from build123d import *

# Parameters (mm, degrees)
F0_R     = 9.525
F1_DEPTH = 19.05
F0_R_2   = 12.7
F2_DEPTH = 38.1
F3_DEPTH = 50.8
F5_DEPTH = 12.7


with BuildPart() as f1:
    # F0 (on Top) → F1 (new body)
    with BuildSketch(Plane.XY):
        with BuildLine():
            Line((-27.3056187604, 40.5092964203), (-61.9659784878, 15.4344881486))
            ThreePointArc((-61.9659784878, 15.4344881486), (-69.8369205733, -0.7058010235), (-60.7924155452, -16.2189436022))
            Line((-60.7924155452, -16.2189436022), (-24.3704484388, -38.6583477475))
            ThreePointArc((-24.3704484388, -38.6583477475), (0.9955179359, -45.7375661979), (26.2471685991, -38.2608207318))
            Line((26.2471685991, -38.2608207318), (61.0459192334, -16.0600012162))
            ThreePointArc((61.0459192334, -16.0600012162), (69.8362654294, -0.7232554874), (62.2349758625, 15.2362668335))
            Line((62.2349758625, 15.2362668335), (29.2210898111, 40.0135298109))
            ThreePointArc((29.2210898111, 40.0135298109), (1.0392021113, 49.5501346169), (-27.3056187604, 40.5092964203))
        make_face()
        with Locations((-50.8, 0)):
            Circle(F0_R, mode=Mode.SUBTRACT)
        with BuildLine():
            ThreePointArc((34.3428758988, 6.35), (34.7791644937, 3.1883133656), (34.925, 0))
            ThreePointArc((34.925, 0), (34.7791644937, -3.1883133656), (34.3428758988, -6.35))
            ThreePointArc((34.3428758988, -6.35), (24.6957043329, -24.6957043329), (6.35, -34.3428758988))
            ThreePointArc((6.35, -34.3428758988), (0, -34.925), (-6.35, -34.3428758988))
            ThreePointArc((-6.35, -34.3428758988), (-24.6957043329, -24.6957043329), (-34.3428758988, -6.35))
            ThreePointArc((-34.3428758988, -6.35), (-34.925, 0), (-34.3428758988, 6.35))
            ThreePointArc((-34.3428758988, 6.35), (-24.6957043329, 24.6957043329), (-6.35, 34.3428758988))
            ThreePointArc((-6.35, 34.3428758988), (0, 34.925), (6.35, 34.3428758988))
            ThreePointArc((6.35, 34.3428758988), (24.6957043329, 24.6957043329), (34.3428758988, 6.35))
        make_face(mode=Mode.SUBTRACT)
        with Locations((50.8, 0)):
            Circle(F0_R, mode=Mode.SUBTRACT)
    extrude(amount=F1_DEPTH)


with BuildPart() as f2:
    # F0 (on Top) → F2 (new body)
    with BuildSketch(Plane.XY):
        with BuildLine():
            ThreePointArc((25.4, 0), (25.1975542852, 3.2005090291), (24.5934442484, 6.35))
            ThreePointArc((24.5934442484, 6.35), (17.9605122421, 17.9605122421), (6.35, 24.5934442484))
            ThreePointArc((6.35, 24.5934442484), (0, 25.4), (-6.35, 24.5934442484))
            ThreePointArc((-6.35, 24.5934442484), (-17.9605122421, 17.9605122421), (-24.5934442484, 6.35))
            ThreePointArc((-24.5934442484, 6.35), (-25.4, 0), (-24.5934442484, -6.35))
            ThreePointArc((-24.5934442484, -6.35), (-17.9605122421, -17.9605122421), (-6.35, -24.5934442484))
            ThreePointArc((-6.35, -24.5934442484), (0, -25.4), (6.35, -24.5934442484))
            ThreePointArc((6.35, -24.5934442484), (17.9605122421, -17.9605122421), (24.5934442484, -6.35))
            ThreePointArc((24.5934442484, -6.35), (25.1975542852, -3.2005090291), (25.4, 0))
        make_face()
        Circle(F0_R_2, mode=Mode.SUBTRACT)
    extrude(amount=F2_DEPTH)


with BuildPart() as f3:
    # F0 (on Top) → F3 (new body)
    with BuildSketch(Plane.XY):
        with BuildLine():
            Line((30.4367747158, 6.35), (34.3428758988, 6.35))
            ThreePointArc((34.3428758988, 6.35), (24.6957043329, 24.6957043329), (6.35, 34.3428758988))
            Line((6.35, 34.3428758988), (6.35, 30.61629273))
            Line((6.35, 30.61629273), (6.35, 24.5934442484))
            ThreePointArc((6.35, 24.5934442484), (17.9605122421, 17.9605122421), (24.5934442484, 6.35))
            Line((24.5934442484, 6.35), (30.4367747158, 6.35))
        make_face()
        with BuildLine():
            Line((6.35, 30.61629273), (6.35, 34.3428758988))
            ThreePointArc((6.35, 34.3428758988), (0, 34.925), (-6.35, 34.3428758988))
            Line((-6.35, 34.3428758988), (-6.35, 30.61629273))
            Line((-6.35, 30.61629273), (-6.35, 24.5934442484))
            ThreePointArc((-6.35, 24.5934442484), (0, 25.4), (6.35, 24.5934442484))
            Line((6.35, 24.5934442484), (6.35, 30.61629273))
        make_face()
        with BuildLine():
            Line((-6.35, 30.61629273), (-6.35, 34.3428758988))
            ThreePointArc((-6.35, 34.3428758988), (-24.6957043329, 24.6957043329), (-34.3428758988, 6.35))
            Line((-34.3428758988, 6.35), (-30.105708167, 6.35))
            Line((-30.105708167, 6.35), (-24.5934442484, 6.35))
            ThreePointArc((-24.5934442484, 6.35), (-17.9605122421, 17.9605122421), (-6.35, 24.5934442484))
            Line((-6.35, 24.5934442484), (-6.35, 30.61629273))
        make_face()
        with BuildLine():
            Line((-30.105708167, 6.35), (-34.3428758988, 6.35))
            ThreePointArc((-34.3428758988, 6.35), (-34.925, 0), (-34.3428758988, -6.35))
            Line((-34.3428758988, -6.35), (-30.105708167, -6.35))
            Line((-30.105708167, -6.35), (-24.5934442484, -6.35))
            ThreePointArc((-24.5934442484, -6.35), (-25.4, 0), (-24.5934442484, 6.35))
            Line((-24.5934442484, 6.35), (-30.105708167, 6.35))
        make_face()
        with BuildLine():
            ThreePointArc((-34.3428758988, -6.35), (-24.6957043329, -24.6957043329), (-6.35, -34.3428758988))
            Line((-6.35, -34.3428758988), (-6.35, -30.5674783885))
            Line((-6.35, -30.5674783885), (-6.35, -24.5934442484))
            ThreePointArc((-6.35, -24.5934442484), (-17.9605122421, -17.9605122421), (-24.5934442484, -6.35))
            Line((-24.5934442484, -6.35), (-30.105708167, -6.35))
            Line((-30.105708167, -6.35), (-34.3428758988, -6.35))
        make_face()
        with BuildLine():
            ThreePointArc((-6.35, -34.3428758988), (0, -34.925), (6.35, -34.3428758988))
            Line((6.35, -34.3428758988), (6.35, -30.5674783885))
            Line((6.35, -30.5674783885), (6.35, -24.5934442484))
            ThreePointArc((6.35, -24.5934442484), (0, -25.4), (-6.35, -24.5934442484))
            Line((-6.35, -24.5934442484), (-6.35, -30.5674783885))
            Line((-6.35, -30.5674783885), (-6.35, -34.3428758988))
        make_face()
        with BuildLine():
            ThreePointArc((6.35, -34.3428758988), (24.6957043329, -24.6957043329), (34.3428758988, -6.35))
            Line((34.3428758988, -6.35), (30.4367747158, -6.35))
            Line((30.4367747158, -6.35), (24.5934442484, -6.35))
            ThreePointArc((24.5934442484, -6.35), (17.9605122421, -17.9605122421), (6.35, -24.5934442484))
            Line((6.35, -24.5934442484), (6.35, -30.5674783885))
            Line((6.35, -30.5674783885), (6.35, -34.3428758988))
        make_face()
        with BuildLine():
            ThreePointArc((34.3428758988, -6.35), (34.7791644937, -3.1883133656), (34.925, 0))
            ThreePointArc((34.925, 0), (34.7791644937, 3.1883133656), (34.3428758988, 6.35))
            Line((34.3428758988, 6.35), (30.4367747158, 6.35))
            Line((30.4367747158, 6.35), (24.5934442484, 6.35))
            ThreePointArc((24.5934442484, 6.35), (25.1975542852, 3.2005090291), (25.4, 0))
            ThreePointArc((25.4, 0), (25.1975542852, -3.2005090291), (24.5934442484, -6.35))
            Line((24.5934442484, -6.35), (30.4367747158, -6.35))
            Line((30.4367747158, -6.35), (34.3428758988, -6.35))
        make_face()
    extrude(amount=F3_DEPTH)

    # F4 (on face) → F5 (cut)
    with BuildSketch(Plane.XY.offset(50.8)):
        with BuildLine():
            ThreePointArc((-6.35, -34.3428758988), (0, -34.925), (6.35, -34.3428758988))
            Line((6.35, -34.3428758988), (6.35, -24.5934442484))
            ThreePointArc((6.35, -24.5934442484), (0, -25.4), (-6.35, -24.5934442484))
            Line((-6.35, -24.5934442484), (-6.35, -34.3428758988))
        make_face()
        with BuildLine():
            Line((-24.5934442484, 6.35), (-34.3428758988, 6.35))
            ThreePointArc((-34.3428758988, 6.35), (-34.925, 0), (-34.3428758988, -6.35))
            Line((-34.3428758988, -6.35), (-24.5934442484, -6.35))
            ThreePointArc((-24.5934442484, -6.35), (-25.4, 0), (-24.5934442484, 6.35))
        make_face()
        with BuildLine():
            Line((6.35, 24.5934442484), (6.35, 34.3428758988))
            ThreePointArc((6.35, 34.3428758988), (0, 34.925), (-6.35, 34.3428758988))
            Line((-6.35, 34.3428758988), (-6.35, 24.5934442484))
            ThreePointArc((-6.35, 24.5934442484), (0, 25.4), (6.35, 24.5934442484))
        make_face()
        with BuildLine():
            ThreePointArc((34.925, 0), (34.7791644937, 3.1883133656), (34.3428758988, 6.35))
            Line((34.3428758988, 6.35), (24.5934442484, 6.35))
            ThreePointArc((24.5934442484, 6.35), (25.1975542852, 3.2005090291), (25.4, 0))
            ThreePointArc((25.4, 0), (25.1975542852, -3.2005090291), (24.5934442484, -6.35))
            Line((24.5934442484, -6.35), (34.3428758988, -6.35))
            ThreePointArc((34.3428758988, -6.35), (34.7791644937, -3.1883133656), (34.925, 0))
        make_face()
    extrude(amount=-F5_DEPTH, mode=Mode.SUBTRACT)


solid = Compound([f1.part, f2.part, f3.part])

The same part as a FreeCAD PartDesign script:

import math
import FreeCAD as App
import Part
import Sketcher

V = App.Vector
Q = App.Units.Quantity

doc = App.newDocument("Part")
params = doc.addObject("Spreadsheet::Sheet", "Params")
for row, (alias, value) in enumerate([
    ("sketch1_diameter", "0.75 in"),
    ("sketch1_radius", "0.75 in"),
    ("sketch1_radius2", "1.375 in"),
    ("pad1_length", "0.75 in"),
    ("sketch2_diameter", "1 in"),
    ("sketch2_radius", "1 in"),
    ("pad2_length", "1.5 in"),
    ("sketch3_radius", "1 in"),
    ("sketch3_radius2", "1.375 in"),
    ("pad3_length", "2 in"),
    ("sketch4_radius", "1 in"),
    ("sketch4_radius2", "1.375 in"),
    ("pocket1_length", "0.5 in"),
], start=1):
    params.set(f"A{row}", alias)
    params.set(f"B{row}", "=" + value)
    params.setAlias(f"B{row}", alias)

body = doc.addObject("PartDesign::Body", "Body")

# Sketch on XY plane
sketch1 = body.newObject("Sketcher::SketchObject", "Sketch")
sketch1.AttachmentSupport = (doc.getObject("XY_Plane"), [""])
sketch1.MapMode = "FlatFace"
sketch1.addGeometry([
    Part.LineSegment(V(-27.305619, 40.509296, 0), V(-61.965978, 15.434488, 0)),  # 0
    Part.ArcOfCircle(Part.Circle(V(-50.8, 0, 0), V(0, 0, 1), 19.05), math.radians(125.883609), math.radians(238.362971)),  # 1
    Part.LineSegment(V(-60.792416, -16.218944, 0), V(-24.370448, -38.658348, 0)),  # 2
    Part.ArcOfCircle(Part.Circle(V(0.621344, 1.906466, 0), V(0, 0, 1), 47.645501), math.radians(-121.637029), math.radians(-57.463041)),  # 3
    Part.LineSegment(V(26.247169, -38.260821, 0), V(61.045919, -16.060001, 0)),  # 4
    Part.ArcOfCircle(Part.Circle(V(50.8, 0, 0), V(0, 0, 1), 19.05), math.radians(-57.463041), math.radians(53.111393)),  # 5
    Part.LineSegment(V(62.234976, 15.236267, 0), V(29.22109, 40.01353, 0)),  # 6
    Part.ArcOfCircle(Part.Circle(V(0.621344, 1.906466, 0), V(0, 0, 1), 47.645501), math.radians(53.111393), math.radians(125.883609)),  # 7
    Part.Circle(V(-50.8, 0, 0), V(0, 0, 1), 9.525),  # 8
    Part.ArcOfCircle(Part.Circle(V(0, 0, 0), V(0, 0, 1), 34.925), math.radians(10.475682), math.radians(79.524318)),  # 9
    Part.ArcOfCircle(Part.Circle(V(0, 0, 0), V(0, 0, 1), 34.925), math.radians(0), math.radians(10.475682)),  # 10
    Part.ArcOfCircle(Part.Circle(V(0, 0, 0), V(0, 0, 1), 34.925), math.radians(-10.475682), math.radians(0)),  # 11
    Part.ArcOfCircle(Part.Circle(V(0, 0, 0), V(0, 0, 1), 34.925), math.radians(-79.524318), math.radians(-10.475682)),  # 12
    Part.ArcOfCircle(Part.Circle(V(0, 0, 0), V(0, 0, 1), 34.925), math.radians(-100.475682), math.radians(-79.524318)),  # 13
    Part.ArcOfCircle(Part.Circle(V(0, 0, 0), V(0, 0, 1), 34.925), math.radians(-169.524318), math.radians(-100.475682)),  # 14
    Part.ArcOfCircle(Part.Circle(V(0, 0, 0), V(0, 0, 1), 34.925), math.radians(169.524318), math.radians(190.475682)),  # 15
    Part.ArcOfCircle(Part.Circle(V(0, 0, 0), V(0, 0, 1), 34.925), math.radians(100.475682), math.radians(169.524318)),  # 16
    Part.ArcOfCircle(Part.Circle(V(0, 0, 0), V(0, 0, 1), 34.925), math.radians(79.524318), math.radians(100.475682)),  # 17
    Part.Circle(V(50.8, 0, 0), V(0, 0, 1), 9.525),  # 18
], False)
sketch1.addConstraint([
    Sketcher.Constraint("Tangent", 0, 2, 1, 1),
    Sketcher.Constraint("Tangent", 1, 2, 2, 1),
    Sketcher.Constraint("Tangent", 2, 2, 3, 1),
    Sketcher.Constraint("Tangent", 3, 2, 4, 1),
    Sketcher.Constraint("Tangent", 4, 2, 5, 1),
    Sketcher.Constraint("Tangent", 5, 2, 6, 1),
    Sketcher.Constraint("Tangent", 6, 2, 7, 1),
    Sketcher.Constraint("Tangent", 7, 2, 0, 1),
    Sketcher.Constraint("Tangent", 9, 1, 10, 2),
    Sketcher.Constraint("Tangent", 10, 1, 11, 2),
    Sketcher.Constraint("Tangent", 11, 1, 12, 2),
    Sketcher.Constraint("Tangent", 12, 1, 13, 2),
    Sketcher.Constraint("Tangent", 13, 1, 14, 2),
    Sketcher.Constraint("Tangent", 14, 1, 15, 2),
    Sketcher.Constraint("Tangent", 15, 1, 16, 2),
    Sketcher.Constraint("Tangent", 16, 1, 17, 2),
    Sketcher.Constraint("Tangent", 17, 1, 9, 2),
    Sketcher.Constraint("Coincident", 9, 3, -1, 1),
    Sketcher.Constraint("Coincident", 11, 3, -1, 1),
    Sketcher.Constraint("Coincident", 13, 3, -1, 1),
    Sketcher.Constraint("Coincident", 15, 3, -1, 1),
    Sketcher.Constraint("Coincident", 7, 3, 3, 3),
    Sketcher.Constraint("Coincident", 8, 3, 1, 3),
    Sketcher.Constraint("Coincident", 18, 3, 5, 3),
    Sketcher.Constraint("Equal", 1, 5),
    Sketcher.Constraint("Equal", 3, 7),
    Sketcher.Constraint("Equal", 8, 18),
    Sketcher.Constraint("Symmetric", 1, 3, 5, 3, -1, 1),
    Sketcher.Constraint("PointOnObject", 1, 3, -1),
    Sketcher.Constraint("PointOnObject", 10, 1, -1),
    Sketcher.Constraint("Horizontal", 12, 1, 13, 1),
    Sketcher.Constraint("Horizontal", 11, 1, 14, 1),
    Sketcher.Constraint("Horizontal", 9, 1, 15, 1),
    Sketcher.Constraint("Horizontal", 16, 1, 17, 1),
    Sketcher.Constraint("Vertical", 9, 1, 11, 1),
    Sketcher.Constraint("Vertical", 13, 1, 16, 1),
    Sketcher.Constraint("Diameter", 8, Q("0.75 in")),
    Sketcher.Constraint("Radius", 1, Q("0.75 in")),
    Sketcher.Constraint("DistanceX", 1, 3, -1, 1, Q("2 in")),
    Sketcher.Constraint("Radius", 9, Q("1.375 in")),
    Sketcher.Constraint("DistanceY", 11, 1, 9, 1, Q("0.5 in")),
    Sketcher.Constraint("DistanceX", 13, 1, 12, 1, Q("0.5 in")),
    Sketcher.Constraint("Radius", 3, Q("47.645501 mm")),
    Sketcher.Constraint("DistanceY", 4, 2, -1, 1, Q("16.060001 mm")),
    Sketcher.Constraint("DistanceY", 3, 3, 5, 2, Q("13.329801 mm")),
])
sketch1.setExpression("Constraints[36]", "Params.sketch1_diameter")
sketch1.setExpression("Constraints[37]", "Params.sketch1_radius")
sketch1.setExpression("Constraints[39]", "Params.sketch1_radius2")
pad1 = body.newObject("PartDesign::Pad", "Pad")
pad1.Profile = sketch1
pad1.setExpression("Length", "Params.pad1_length")
body2 = doc.addObject("PartDesign::Body", "Body001")

# Sketch on XY plane
sketch2 = body2.newObject("Sketcher::SketchObject", "Sketch001")
sketch2.AttachmentSupport = (doc.getObject("XY_Plane001"), [""])
sketch2.MapMode = "FlatFace"
sketch2.addGeometry([
    Part.ArcOfCircle(Part.Circle(V(0, 0, 0), V(0, 0, 1), 25.4), math.radians(0), math.radians(14.477512)),  # 0
    Part.ArcOfCircle(Part.Circle(V(0, 0, 0), V(0, 0, 1), 25.4), math.radians(14.477512), math.radians(104.477512)),  # 1
    Part.ArcOfCircle(Part.Circle(V(0, 0, 0), V(0, 0, 1), 25.4), math.radians(104.477512), math.radians(194.477512)),  # 2
    Part.ArcOfCircle(Part.Circle(V(0, 0, 0), V(0, 0, 1), 25.4), math.radians(-165.522488), math.radians(-75.522488)),  # 3
    Part.ArcOfCircle(Part.Circle(V(0, 0, 0), V(0, 0, 1), 25.4), math.radians(-75.522488), math.radians(-14.477512)),  # 4
    Part.ArcOfCircle(Part.Circle(V(0, 0, 0), V(0, 0, 1), 25.4), math.radians(-14.477512), math.radians(0)),  # 5
    Part.Circle(V(0, 0, 0), V(0, 0, 1), 12.7),  # 6
], False)
sketch2.addConstraint([
    Sketcher.Constraint("Tangent", 0, 2, 1, 1),
    Sketcher.Constraint("Tangent", 1, 2, 2, 1),
    Sketcher.Constraint("Tangent", 2, 2, 3, 1),
    Sketcher.Constraint("Tangent", 3, 2, 4, 1),
    Sketcher.Constraint("Tangent", 4, 2, 5, 1),
    Sketcher.Constraint("Tangent", 5, 2, 0, 1),
    Sketcher.Constraint("Coincident", 0, 3, -1, 1),
    Sketcher.Constraint("Coincident", 2, 3, -1, 1),
    Sketcher.Constraint("Coincident", 6, 3, -1, 1),
    Sketcher.Constraint("Equal", 2, 3),
    Sketcher.Constraint("PointOnObject", 5, 2, -1),
    Sketcher.Constraint("Horizontal", 2, 2, 4, 2),
    Sketcher.Constraint("Vertical", 0, 2, 4, 2),
    Sketcher.Constraint("Diameter", 6, Q("1 in")),
    Sketcher.Constraint("Radius", 0, Q("1 in")),
    Sketcher.Constraint("DistanceY", 4, 2, 0, 2, Q("0.5 in")),
    Sketcher.Constraint("DistanceX", 1, 2, -1, 1, Q("0.25 in")),
    Sketcher.Constraint("DistanceX", -1, 1, 3, 2, Q("0.25 in")),
])
sketch2.setExpression("Constraints[13]", "Params.sketch2_diameter")
sketch2.setExpression("Constraints[14]", "Params.sketch2_radius")
pad2 = body2.newObject("PartDesign::Pad", "Pad001")
pad2.Profile = sketch2
pad2.setExpression("Length", "Params.pad2_length")
body3 = doc.addObject("PartDesign::Body", "Body002")

# Sketch on XY plane
sketch3 = body3.newObject("Sketcher::SketchObject", "Sketch002")
sketch3.AttachmentSupport = (doc.getObject("XY_Plane002"), [""])
sketch3.MapMode = "FlatFace"
sketch3.addGeometry([
    Part.ArcOfCircle(Part.Circle(V(0, 0, 0), V(0, 0, 1), 34.925), math.radians(10.475682), math.radians(79.524318)),  # 0
    Part.ArcOfCircle(Part.Circle(V(0, 0, 0), V(0, 0, 1), 34.925), math.radians(79.524318), math.radians(100.475682)),  # 1
    Part.ArcOfCircle(Part.Circle(V(0, 0, 0), V(0, 0, 1), 34.925), math.radians(100.475682), math.radians(169.524318)),  # 2
    Part.ArcOfCircle(Part.Circle(V(0, 0, 0), V(0, 0, 1), 34.925), math.radians(169.524318), math.radians(190.475682)),  # 3
    Part.ArcOfCircle(Part.Circle(V(0, 0, 0), V(0, 0, 1), 34.925), math.radians(-169.524318), math.radians(-100.475682)),  # 4
    Part.ArcOfCircle(Part.Circle(V(0, 0, 0), V(0, 0, 1), 34.925), math.radians(-100.475682), math.radians(-79.524318)),  # 5
    Part.ArcOfCircle(Part.Circle(V(0, 0, 0), V(0, 0, 1), 34.925), math.radians(-79.524318), math.radians(-10.475682)),  # 6
    Part.ArcOfCircle(Part.Circle(V(0, 0, 0), V(0, 0, 1), 34.925), math.radians(-10.475682), math.radians(0)),  # 7
    Part.ArcOfCircle(Part.Circle(V(0, 0, 0), V(0, 0, 1), 34.925), math.radians(0), math.radians(10.475682)),  # 8
    Part.ArcOfCircle(Part.Circle(V(0, 0, 0), V(0, 0, 1), 25.4), math.radians(14.477512), math.radians(345.522488)),  # 9
    Part.ArcOfCircle(Part.Circle(V(0, 0, 0), V(0, 0, 1), 25.4), math.radians(0), math.radians(14.477512)),  # 10
    Part.ArcOfCircle(Part.Circle(V(0, 0, 0), V(0, 0, 1), 25.4), math.radians(-14.477512), math.radians(0)),  # 11
], False)
sketch3.addConstraint([
    Sketcher.Constraint("Tangent", 0, 2, 1, 1),
    Sketcher.Constraint("Tangent", 1, 2, 2, 1),
    Sketcher.Constraint("Tangent", 2, 2, 3, 1),
    Sketcher.Constraint("Tangent", 3, 2, 4, 1),
    Sketcher.Constraint("Tangent", 4, 2, 5, 1),
    Sketcher.Constraint("Tangent", 5, 2, 6, 1),
    Sketcher.Constraint("Tangent", 6, 2, 7, 1),
    Sketcher.Constraint("Tangent", 7, 2, 8, 1),
    Sketcher.Constraint("Tangent", 8, 2, 0, 1),
    Sketcher.Constraint("Tangent", 9, 1, 10, 2),
    Sketcher.Constraint("Tangent", 10, 1, 11, 2),
    Sketcher.Constraint("Tangent", 11, 1, 9, 2),
    Sketcher.Constraint("Coincident", 0, 3, -1, 1),
    Sketcher.Constraint("Coincident", 2, 3, -1, 1),
    Sketcher.Constraint("Coincident", 4, 3, -1, 1),
    Sketcher.Constraint("Coincident", 6, 3, -1, 1),
    Sketcher.Constraint("Coincident", 9, 3, -1, 1),
    Sketcher.Constraint("PointOnObject", 7, 2, -1),
    Sketcher.Constraint("PointOnObject", 10, 1, -1),
    Sketcher.Constraint("Horizontal", 0, 2, 1, 2),
    Sketcher.Constraint("Horizontal", 4, 2, 5, 2),
    Sketcher.Constraint("Horizontal", 3, 2, 6, 2),
    Sketcher.Constraint("Horizontal", 2, 2, 8, 2),
    Sketcher.Constraint("Horizontal", 8, 2, 9, 1),
    Sketcher.Constraint("Horizontal", 6, 2, 11, 1),
    Sketcher.Constraint("Vertical", 2, 2, 3, 2),
    Sketcher.Constraint("Vertical", 1, 2, 4, 2),
    Sketcher.Constraint("Radius", 9, Q("1 in")),
    Sketcher.Constraint("Radius", 0, Q("1.375 in")),
    Sketcher.Constraint("DistanceX", 1, 2, 0, 2, Q("0.5 in")),
    Sketcher.Constraint("DistanceY", 3, 2, 2, 2, Q("0.5 in")),
])
sketch3.setExpression("Constraints[27]", "Params.sketch3_radius")
sketch3.setExpression("Constraints[28]", "Params.sketch3_radius2")
pad3 = body3.newObject("PartDesign::Pad", "Pad002")
pad3.Profile = sketch3
pad3.setExpression("Length", "Params.pad3_length")

# Sketch on XY plane
sketch4 = body3.newObject("Sketcher::SketchObject", "Sketch003")
sketch4.AttachmentSupport = (doc.getObject("XY_Plane002"), [""])
sketch4.MapMode = "FlatFace"
sketch4.AttachmentOffset = App.Placement(V(0, 0, 2 * 25.4), App.Rotation())
sketch4.addGeometry([
    Part.ArcOfCircle(Part.Circle(V(0, 0, 0), V(0, 0, 1), 34.925), math.radians(-100.475682), math.radians(-79.524318)),  # 0
    Part.LineSegment(V(6.35, -34.342876, 0), V(6.35, -24.593444, 0)),  # 1
    Part.ArcOfCircle(Part.Circle(V(0, 0, 0), V(0, 0, 1), 25.4), math.radians(-104.477512), math.radians(-75.522488)),  # 2
    Part.LineSegment(V(-6.35, -24.593444, 0), V(-6.35, -34.342876, 0)),  # 3
    Part.LineSegment(V(-24.593444, 6.35, 0), V(-34.342876, 6.35, 0)),  # 4
    Part.ArcOfCircle(Part.Circle(V(0, 0, 0), V(0, 0, 1), 34.925), math.radians(169.524318), math.radians(190.475682)),  # 5
    Part.LineSegment(V(-34.342876, -6.35, 0), V(-24.593444, -6.35, 0)),  # 6
    Part.ArcOfCircle(Part.Circle(V(0, 0, 0), V(0, 0, 1), 25.4), math.radians(165.522488), math.radians(194.477512)),  # 7
    Part.LineSegment(V(6.35, 24.593444, 0), V(6.35, 34.342876, 0)),  # 8
    Part.ArcOfCircle(Part.Circle(V(0, 0, 0), V(0, 0, 1), 34.925), math.radians(79.524318), math.radians(100.475682)),  # 9
    Part.LineSegment(V(-6.35, 34.342876, 0), V(-6.35, 24.593444, 0)),  # 10
    Part.ArcOfCircle(Part.Circle(V(0, 0, 0), V(0, 0, 1), 25.4), math.radians(75.522488), math.radians(104.477512)),  # 11
    Part.ArcOfCircle(Part.Circle(V(0, 0, 0), V(0, 0, 1), 34.925), math.radians(0), math.radians(10.475682)),  # 12
    Part.LineSegment(V(34.342876, 6.35, 0), V(24.593444, 6.35, 0)),  # 13
    Part.ArcOfCircle(Part.Circle(V(0, 0, 0), V(0, 0, 1), 25.4), math.radians(0), math.radians(14.477512)),  # 14
    Part.ArcOfCircle(Part.Circle(V(0, 0, 0), V(0, 0, 1), 25.4), math.radians(-14.477512), math.radians(0)),  # 15
    Part.LineSegment(V(24.593444, -6.35, 0), V(34.342876, -6.35, 0)),  # 16
    Part.ArcOfCircle(Part.Circle(V(0, 0, 0), V(0, 0, 1), 34.925), math.radians(-10.475682), math.radians(0)),  # 17
], False)
sketch4.addConstraint([
    Sketcher.Constraint("Coincident", 0, 2, 1, 1),
    Sketcher.Constraint("Coincident", 1, 2, 2, 2),
    Sketcher.Constraint("Coincident", 2, 1, 3, 1),
    Sketcher.Constraint("Coincident", 3, 2, 0, 1),
    Sketcher.Constraint("Coincident", 4, 2, 5, 1),
    Sketcher.Constraint("Coincident", 5, 2, 6, 1),
    Sketcher.Constraint("Coincident", 6, 2, 7, 2),
    Sketcher.Constraint("Coincident", 7, 1, 4, 1),
    Sketcher.Constraint("Coincident", 8, 2, 9, 1),
    Sketcher.Constraint("Coincident", 9, 2, 10, 1),
    Sketcher.Constraint("Coincident", 10, 2, 11, 2),
    Sketcher.Constraint("Coincident", 11, 1, 8, 1),
    Sketcher.Constraint("Coincident", 12, 2, 13, 1),
    Sketcher.Constraint("Coincident", 13, 2, 14, 2),
    Sketcher.Constraint("Tangent", 14, 1, 15, 2),
    Sketcher.Constraint("Coincident", 15, 1, 16, 1),
    Sketcher.Constraint("Coincident", 16, 2, 17, 1),
    Sketcher.Constraint("Tangent", 17, 2, 12, 1),
    Sketcher.Constraint("Vertical", 1),
    Sketcher.Constraint("Vertical", 3),
    Sketcher.Constraint("Horizontal", 4),
    Sketcher.Constraint("Horizontal", 6),
    Sketcher.Constraint("Vertical", 8),
    Sketcher.Constraint("Vertical", 10),
    Sketcher.Constraint("Horizontal", 13),
    Sketcher.Constraint("Horizontal", 16),
    Sketcher.Constraint("Coincident", 0, 3, -1, 1),
    Sketcher.Constraint("Coincident", 2, 3, -1, 1),
    Sketcher.Constraint("Coincident", 5, 3, -1, 1),
    Sketcher.Constraint("Coincident", 7, 3, -1, 1),
    Sketcher.Constraint("Coincident", 9, 3, -1, 1),
    Sketcher.Constraint("Coincident", 11, 3, -1, 1),
    Sketcher.Constraint("Coincident", 12, 3, -1, 1),
    Sketcher.Constraint("Coincident", 14, 3, -1, 1),
    Sketcher.Constraint("Equal", 0, 5),
    Sketcher.Constraint("Equal", 2, 7),
    Sketcher.Constraint("Equal", 5, 9),
    Sketcher.Constraint("Equal", 7, 11),
    Sketcher.Constraint("Equal", 9, 12),
    Sketcher.Constraint("Equal", 11, 14),
    Sketcher.Constraint("Equal", 14, 15),
    Sketcher.Constraint("Equal", 12, 17),
    Sketcher.Constraint("PointOnObject", 14, 1, -1),
    Sketcher.Constraint("PointOnObject", 17, 2, -1),
    Sketcher.Constraint("Horizontal", 1, 2, 2, 1),
    Sketcher.Constraint("Horizontal", 8, 2, 9, 2),
    Sketcher.Constraint("Horizontal", 7, 1, 12, 2),
    Sketcher.Constraint("Horizontal", 6, 2, 15, 1),
    Sketcher.Constraint("Vertical", 4, 2, 5, 2),
    Sketcher.Constraint("Vertical", 1, 2, 8, 2),
    Sketcher.Constraint("Equal", 16, 1),
    Sketcher.Constraint("Radius", 2, Q("1 in")),
    Sketcher.Constraint("Radius", 0, Q("1.375 in")),
    Sketcher.Constraint("DistanceX", 2, 1, 1, 2, Q("0.5 in")),
])
sketch4.setExpression("Constraints[51]", "Params.sketch4_radius")
sketch4.setExpression("Constraints[52]", "Params.sketch4_radius2")
pocket1 = body3.newObject("PartDesign::Pocket", "Pocket")
pocket1.Profile = sketch4
pocket1.setExpression("Length", "Params.pocket1_length")

doc.recompute()
